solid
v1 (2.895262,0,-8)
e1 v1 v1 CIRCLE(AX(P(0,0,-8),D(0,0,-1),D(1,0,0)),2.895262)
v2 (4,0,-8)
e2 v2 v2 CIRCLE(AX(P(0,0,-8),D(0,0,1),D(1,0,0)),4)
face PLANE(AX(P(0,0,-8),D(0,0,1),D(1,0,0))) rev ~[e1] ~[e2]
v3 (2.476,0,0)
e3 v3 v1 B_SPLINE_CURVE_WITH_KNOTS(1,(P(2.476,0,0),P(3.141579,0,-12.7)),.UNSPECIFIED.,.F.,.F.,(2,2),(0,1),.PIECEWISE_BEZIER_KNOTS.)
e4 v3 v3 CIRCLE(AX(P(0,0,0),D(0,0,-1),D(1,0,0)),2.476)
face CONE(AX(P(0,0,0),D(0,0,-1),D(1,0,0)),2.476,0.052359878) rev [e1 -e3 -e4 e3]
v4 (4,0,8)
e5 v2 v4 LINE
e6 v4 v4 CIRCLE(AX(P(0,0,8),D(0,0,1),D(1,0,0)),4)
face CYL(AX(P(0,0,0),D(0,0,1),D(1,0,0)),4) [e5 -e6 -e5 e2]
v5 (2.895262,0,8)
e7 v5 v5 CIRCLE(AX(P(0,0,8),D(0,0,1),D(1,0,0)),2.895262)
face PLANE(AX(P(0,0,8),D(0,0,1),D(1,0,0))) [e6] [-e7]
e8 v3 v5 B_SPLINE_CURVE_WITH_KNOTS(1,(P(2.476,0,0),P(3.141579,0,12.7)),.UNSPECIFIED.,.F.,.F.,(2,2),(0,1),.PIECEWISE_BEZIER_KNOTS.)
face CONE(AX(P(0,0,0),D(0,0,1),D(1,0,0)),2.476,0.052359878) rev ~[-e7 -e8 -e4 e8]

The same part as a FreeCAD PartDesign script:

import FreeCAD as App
import Part
import Sketcher
Q = App.Units.Quantity

doc = App.newDocument("Part")
body = doc.addObject("PartDesign::Body", "Body")

# Sketch on XY plane
sketch1 = body.newObject("Sketcher::SketchObject", "Sketch")
sketch1.AttachmentSupport = (doc.getObject("XY_Plane"), [""])
sketch1.MapMode = "FlatFace"
sketch1.addGeometry(Part.Circle(App.Vector(0, 0, 0), App.Vector(0, 0, 1), 4), False)
sketch1.addConstraint([
    Sketcher.Constraint("Coincident", 0, 3, -1, 1),
    Sketcher.Constraint("Diameter", 0, Q("8 mm")),
])
pad1 = body.newObject("PartDesign::Pad", "Pad")
pad1.Profile = sketch1
pad1.Length = 16
pad1.Midplane = True

# Sketch on XY plane
sketch2 = body.newObject("Sketcher::SketchObject", "Sketch001")
sketch2.AttachmentSupport = (doc.getObject("XY_Plane"), [""])
sketch2.MapMode = "FlatFace"
sketch2.addGeometry(Part.Circle(App.Vector(0, 0, 0), App.Vector(0, 0, 1), 2.476), False)
sketch2.addConstraint([
    Sketcher.Constraint("Coincident", 0, 3, -1, 1),
    Sketcher.Constraint("Diameter", 0, Q("4.952 mm")),
])
pocket1 = body.newObject("PartDesign::Pocket", "Pocket")
pocket1.Profile = sketch2
pocket1.Length = 25.4
pocket1.Midplane = True
pocket1.TaperAngle = 3

doc.recompute()
